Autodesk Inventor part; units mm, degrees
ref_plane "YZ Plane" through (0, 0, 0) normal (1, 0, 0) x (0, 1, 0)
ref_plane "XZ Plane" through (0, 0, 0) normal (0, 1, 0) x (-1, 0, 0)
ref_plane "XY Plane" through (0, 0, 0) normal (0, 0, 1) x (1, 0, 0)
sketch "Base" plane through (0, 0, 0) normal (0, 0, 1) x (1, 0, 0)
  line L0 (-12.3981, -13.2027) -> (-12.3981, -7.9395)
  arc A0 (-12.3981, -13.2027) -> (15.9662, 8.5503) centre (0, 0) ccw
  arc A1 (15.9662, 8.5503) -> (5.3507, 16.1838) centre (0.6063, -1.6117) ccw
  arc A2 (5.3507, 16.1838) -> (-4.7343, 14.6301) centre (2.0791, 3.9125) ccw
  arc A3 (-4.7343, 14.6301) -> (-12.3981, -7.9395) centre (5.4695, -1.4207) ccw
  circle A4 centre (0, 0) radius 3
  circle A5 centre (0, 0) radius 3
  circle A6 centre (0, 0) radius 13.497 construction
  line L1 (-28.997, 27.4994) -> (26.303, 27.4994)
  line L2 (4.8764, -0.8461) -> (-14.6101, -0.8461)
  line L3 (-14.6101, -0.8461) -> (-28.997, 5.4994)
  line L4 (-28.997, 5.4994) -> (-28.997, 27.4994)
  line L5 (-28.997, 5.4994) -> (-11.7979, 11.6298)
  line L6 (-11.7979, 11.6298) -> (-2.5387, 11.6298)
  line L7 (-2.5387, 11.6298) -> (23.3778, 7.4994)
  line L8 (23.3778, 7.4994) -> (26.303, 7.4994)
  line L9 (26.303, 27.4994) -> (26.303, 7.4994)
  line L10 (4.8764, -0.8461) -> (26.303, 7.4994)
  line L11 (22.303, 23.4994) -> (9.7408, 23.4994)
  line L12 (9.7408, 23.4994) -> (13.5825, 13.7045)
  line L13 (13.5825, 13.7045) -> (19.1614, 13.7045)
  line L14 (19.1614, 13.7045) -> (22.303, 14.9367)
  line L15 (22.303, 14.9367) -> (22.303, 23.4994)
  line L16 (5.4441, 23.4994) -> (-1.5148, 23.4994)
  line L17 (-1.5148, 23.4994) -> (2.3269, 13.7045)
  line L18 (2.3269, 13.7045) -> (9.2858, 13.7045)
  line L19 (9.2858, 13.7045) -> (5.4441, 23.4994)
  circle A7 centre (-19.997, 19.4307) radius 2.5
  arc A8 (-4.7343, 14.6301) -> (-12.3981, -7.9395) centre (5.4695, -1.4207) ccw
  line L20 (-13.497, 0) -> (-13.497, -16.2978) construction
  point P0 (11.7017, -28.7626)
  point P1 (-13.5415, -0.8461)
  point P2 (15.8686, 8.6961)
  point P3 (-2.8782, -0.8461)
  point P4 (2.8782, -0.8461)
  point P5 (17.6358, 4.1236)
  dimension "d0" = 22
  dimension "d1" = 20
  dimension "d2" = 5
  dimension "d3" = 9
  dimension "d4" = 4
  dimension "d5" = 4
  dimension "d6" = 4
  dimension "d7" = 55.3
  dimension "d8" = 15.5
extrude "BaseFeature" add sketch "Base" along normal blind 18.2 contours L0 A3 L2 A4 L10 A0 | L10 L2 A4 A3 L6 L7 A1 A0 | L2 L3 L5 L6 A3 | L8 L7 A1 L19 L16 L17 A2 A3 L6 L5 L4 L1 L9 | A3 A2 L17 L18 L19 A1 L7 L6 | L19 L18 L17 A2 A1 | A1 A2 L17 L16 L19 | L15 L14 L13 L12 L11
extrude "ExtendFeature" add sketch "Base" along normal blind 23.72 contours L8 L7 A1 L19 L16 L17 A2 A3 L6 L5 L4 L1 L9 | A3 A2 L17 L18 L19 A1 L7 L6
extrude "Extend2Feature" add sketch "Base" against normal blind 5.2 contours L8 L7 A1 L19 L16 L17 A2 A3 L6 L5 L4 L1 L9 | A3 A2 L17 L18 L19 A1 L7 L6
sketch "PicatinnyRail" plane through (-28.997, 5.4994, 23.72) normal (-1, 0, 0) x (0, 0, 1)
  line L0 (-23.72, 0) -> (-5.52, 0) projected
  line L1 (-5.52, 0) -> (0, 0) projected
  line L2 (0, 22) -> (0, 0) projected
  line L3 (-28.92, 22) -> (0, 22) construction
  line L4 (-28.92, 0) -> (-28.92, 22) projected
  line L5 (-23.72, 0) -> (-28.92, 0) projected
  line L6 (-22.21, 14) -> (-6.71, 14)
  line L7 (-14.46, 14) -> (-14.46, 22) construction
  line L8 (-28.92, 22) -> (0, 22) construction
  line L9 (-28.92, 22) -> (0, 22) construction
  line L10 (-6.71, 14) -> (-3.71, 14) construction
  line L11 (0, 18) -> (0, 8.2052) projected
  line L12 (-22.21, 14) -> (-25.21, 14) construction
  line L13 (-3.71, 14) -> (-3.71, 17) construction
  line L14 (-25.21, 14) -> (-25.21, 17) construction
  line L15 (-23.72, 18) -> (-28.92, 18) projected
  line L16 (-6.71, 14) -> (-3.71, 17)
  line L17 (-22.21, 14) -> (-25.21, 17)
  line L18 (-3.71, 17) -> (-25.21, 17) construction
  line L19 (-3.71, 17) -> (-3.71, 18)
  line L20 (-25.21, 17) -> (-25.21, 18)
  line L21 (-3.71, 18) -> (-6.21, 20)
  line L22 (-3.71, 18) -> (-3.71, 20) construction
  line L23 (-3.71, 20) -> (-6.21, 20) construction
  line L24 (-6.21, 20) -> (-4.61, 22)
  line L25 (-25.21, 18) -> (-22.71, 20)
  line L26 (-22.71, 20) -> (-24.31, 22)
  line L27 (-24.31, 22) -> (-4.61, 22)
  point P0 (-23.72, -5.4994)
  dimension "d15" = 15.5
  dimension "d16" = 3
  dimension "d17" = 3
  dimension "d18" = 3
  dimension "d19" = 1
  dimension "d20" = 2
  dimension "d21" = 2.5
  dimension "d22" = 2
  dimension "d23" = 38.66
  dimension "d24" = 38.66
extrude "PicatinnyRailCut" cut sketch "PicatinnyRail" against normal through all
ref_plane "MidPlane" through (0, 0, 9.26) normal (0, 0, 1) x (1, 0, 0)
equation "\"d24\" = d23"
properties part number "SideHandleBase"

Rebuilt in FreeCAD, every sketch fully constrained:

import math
import FreeCAD as App
import Part
import Sketcher
from FreeCAD import Vector
Q = App.Units.Quantity

doc = App.newDocument("Part")
body = doc.addObject("PartDesign::Body", "Body")

# Sketch on XY plane
sketch1 = body.newObject("Sketcher::SketchObject", "Sketch")
sketch1.AttachmentSupport = (doc.getObject("XY_Plane"), [""])
sketch1.MapMode = "FlatFace"
sketch1.addGeometry(Part.LineSegment(Vector(-12.4, -7.94, 0), Vector(-12.4, -13.2, 0)), False)
sketch1.addGeometry(Part.ArcOfCircle(Part.Circle(Vector(0, 0, 0), Vector(0, 0, 1), 18.11), math.radians(-133), math.radians(28)), False)
sketch1.addGeometry(Part.ArcOfCircle(Part.Circle(Vector(0.61, -1.61, 0), Vector(0, 0, 1), 18.42), math.radians(33.49), math.radians(34.03)), False)
sketch1.addGeometry(Part.LineSegment(Vector(15.87, 8.7, 0), Vector(23.38, 7.5, 0)), False)
sketch1.addGeometry(Part.LineSegment(Vector(23.38, 7.5, 0), Vector(26.3, 7.5, 0)), False)
sketch1.addGeometry(Part.LineSegment(Vector(26.3, 7.5, 0), Vector(26.3, 27.5, 0)), False)
sketch1.addGeometry(Part.LineSegment(Vector(26.3, 27.5, 0), Vector(-29, 27.5, 0)), False)
sketch1.addGeometry(Part.LineSegment(Vector(-29, 27.5, 0), Vector(-29, 5.5, 0)), False)
sketch1.addGeometry(Part.LineSegment(Vector(-29, 5.5, 0), Vector(-14.61, -0.85, 0)), False)
sketch1.addGeometry(Part.LineSegment(Vector(-14.61, -0.85, 0), Vector(-13.54, -0.85, 0)), False)
sketch1.addGeometry(Part.ArcOfCircle(Part.Circle(Vector(5.47, -1.42, 0), Vector(0, 0, 1), 19.02), math.radians(178), math.radians(200)), False)
sketch1.addGeometry(Part.Circle(Vector(0, 0, 0), Vector(0, 0, 1), 3), False)
sketch1.addGeometry(Part.Circle(Vector(-20, 19.43, 0), Vector(0, 0, 1), 2.5), False)
sketch1.addConstraint(Sketcher.Constraint("Coincident", 0, 2, 1, 1))
sketch1.addConstraint(Sketcher.Constraint("Coincident", 1, 2, 2, 1))
sketch1.addConstraint(Sketcher.Constraint("Coincident", 2, 2, 3, 1))
sketch1.addConstraint(Sketcher.Constraint("Coincident", 3, 2, 4, 1))
sketch1.addConstraint(Sketcher.Constraint("Coincident", 4, 2, 5, 1))
sketch1.addConstraint(Sketcher.Constraint("Coincident", 5, 2, 6, 1))
sketch1.addConstraint(Sketcher.Constraint("Coincident", 6, 2, 7, 1))
sketch1.addConstraint(Sketcher.Constraint("Coincident", 7, 2, 8, 1))
sketch1.addConstraint(Sketcher.Constraint("Coincident", 8, 2, 9, 1))
sketch1.addConstraint(Sketcher.Constraint("Coincident", 9, 2, 10, 1))
sketch1.addConstraint(Sketcher.Constraint("Coincident", 10, 2, 0, 1))
sketch1.addConstraint(Sketcher.Constraint("Vertical", 0))
sketch1.addConstraint(Sketcher.Constraint("Horizontal", 4))
sketch1.addConstraint(Sketcher.Constraint("Vertical", 5))
sketch1.addConstraint(Sketcher.Constraint("Horizontal", 6))
sketch1.addConstraint(Sketcher.Constraint("Vertical", 7))
sketch1.addConstraint(Sketcher.Constraint("Horizontal", 9))
sketch1.addConstraint(Sketcher.Constraint("Coincident", 1, 3, -1, 1))
sketch1.addConstraint(Sketcher.Constraint("Coincident", 11, 3, -1, 1))
sketch1.addConstraint(Sketcher.Constraint("Diameter", 12, Q("5 mm")))
sketch1.addConstraint(Sketcher.Constraint("DistanceY", 5, 1, 5, 2, Q("20 mm")))
sketch1.addConstraint(Sketcher.Constraint("DistanceY", 7, 2, 7, 1, Q("22 mm")))
sketch1.addConstraint(Sketcher.Constraint("Diameter", 11, Q("6 mm")))
sketch1.addConstraint(Sketcher.Constraint("DistanceX", 6, 2, 6, 1, Q("55.3 mm")))
sketch1.addConstraint(Sketcher.Constraint("DistanceX", 6, 2, 12, 3, Q("9 mm")))
sketch1.addConstraint(Sketcher.Constraint("Angle", 8, Q("-23.8004 deg")))
sketch1.addConstraint(Sketcher.Constraint("Radius", 1, Q("18.1114 mm")))
sketch1.addConstraint(Sketcher.Constraint("Radius", 2, Q("18.4172 mm")))
sketch1.addConstraint(Sketcher.Constraint("Radius", 10, Q("19.0196 mm")))
sketch1.addConstraint(Sketcher.Constraint("DistanceX", 8, 2, -1, 1, Q("14.61 mm")))
sketch1.addConstraint(Sketcher.Constraint("DistanceY", 10, 3, 3, 2, Q("8.92 mm")))
sketch1.addConstraint(Sketcher.Constraint("DistanceX", 4, 1, 4, 2, Q("2.9252 mm")))
sketch1.addConstraint(Sketcher.Constraint("DistanceX", 9, 1, 9, 2, Q("1.0687 mm")))
sketch1.addConstraint(Sketcher.Constraint("DistanceY", 0, 2, 0, 1, Q("5.2632 mm")))
sketch1.addConstraint(Sketcher.Constraint("DistanceX", 12, 3, -1, 1, Q("19.997 mm")))
sketch1.addConstraint(Sketcher.Constraint("DistanceX", 0, 2, -1, 1, Q("12.398 mm")))
sketch1.addConstraint(Sketcher.Constraint("DistanceY", 2, 3, 10, 3, Q("0.191 mm")))
sketch1.addConstraint(Sketcher.Constraint("DistanceY", 10, 3, 1, 2, Q("9.971 mm")))
sketch1.addConstraint(Sketcher.Constraint("DistanceY", 1, 2, 2, 2, Q("0.146 mm")))
sketch1.addConstraint(Sketcher.Constraint("DistanceY", -1, 1, 12, 3, Q("19.4307 mm")))
pad1 = body.newObject("PartDesign::Pad", "Pad")
pad1.Profile = sketch1
pad1.Length = 18.2

# Sketch on XY plane
sketch2 = body.newObject("Sketcher::SketchObject", "Sketch001")
sketch2.AttachmentSupport = (doc.getObject("XY_Plane"), [""])
sketch2.MapMode = "FlatFace"
sketch2.addGeometry(Part.LineSegment(Vector(23.4, 7.5, 0), Vector(26.3, 7.5, 0)), False)
sketch2.addGeometry(Part.LineSegment(Vector(26.3, 7.5, 0), Vector(26.3, 27.5, 0)), False)
sketch2.addGeometry(Part.LineSegment(Vector(26.3, 27.5, 0), Vector(-29, 27.5, 0)), False)
sketch2.addGeometry(Part.LineSegment(Vector(-29, 27.5, 0), Vector(-29, 5.5, 0)), False)
sketch2.addGeometry(Part.LineSegment(Vector(-29, 5.5, 0), Vector(-11.8, 11.6, 0)), False)
sketch2.addGeometry(Part.LineSegment(Vector(-11.8, 11.6, 0), Vector(-2.5, 11.6, 0)), False)
sketch2.addGeometry(Part.LineSegment(Vector(-2.5, 11.6, 0), Vector(23.4, 7.5, 0)), False)
sketch2.addGeometry(Part.LineSegment(Vector(5.4, 23.5, 0), Vector(9.3, 13.7, 0)), False)
sketch2.addGeometry(Part.LineSegment(Vector(9.3, 13.7, 0), Vector(2.3, 13.7, 0)), False)
sketch2.addGeometry(Part.LineSegment(Vector(2.3, 13.7, 0), Vector(-1.5, 23.5, 0)), False)
sketch2.addGeometry(Part.LineSegment(Vector(-1.5, 23.5, 0), Vector(5.4, 23.5, 0)), False)
sketch2.addGeometry(Part.Circle(Vector(-20, 19.4, 0), Vector(0, 0, 1), 2.5), False)
sketch2.addGeometry(Part.LineSegment(Vector(9.7, 23.5, 0), Vector(22.3, 23.5, 0)), False)
sketch2.addGeometry(Part.LineSegment(Vector(22.3, 23.5, 0), Vector(22.3, 14.9, 0)), False)
sketch2.addGeometry(Part.LineSegment(Vector(22.3, 14.9, 0), Vector(19.2, 13.7, 0)), False)
sketch2.addGeometry(Part.LineSegment(Vector(19.2, 13.7, 0), Vector(13.6, 13.7, 0)), False)
sketch2.addGeometry(Part.LineSegment(Vector(13.6, 13.7, 0), Vector(9.7, 23.5, 0)), False)
sketch2.addConstraint(Sketcher.Constraint("Coincident", 0, 2, 1, 1))
sketch2.addConstraint(Sketcher.Constraint("Coincident", 1, 2, 2, 1))
sketch2.addConstraint(Sketcher.Constraint("Coincident", 2, 2, 3, 1))
sketch2.addConstraint(Sketcher.Constraint("Coincident", 3, 2, 4, 1))
sketch2.addConstraint(Sketcher.Constraint("Coincident", 4, 2, 5, 1))
sketch2.addConstraint(Sketcher.Constraint("Coincident", 5, 2, 6, 1))
sketch2.addConstraint(Sketcher.Constraint("Coincident", 6, 2, 0, 1))
sketch2.addConstraint(Sketcher.Constraint("Coincident", 7, 2, 8, 1))
sketch2.addConstraint(Sketcher.Constraint("Coincident", 8, 2, 9, 1))
sketch2.addConstraint(Sketcher.Constraint("Coincident", 9, 2, 10, 1))
sketch2.addConstraint(Sketcher.Constraint("Coincident", 10, 2, 7, 1))
sketch2.addConstraint(Sketcher.Constraint("Coincident", 12, 2, 13, 1))
sketch2.addConstraint(Sketcher.Constraint("Coincident", 13, 2, 14, 1))
sketch2.addConstraint(Sketcher.Constraint("Coincident", 14, 2, 15, 1))
sketch2.addConstraint(Sketcher.Constraint("Coincident", 15, 2, 16, 1))
sketch2.addConstraint(Sketcher.Constraint("Coincident", 16, 2, 12, 1))
sketch2.addConstraint(Sketcher.Constraint("Horizontal", 0))
sketch2.addConstraint(Sketcher.Constraint("Vertical", 1))
sketch2.addConstraint(Sketcher.Constraint("Horizontal", 2))
sketch2.addConstraint(Sketcher.Constraint("Vertical", 3))
sketch2.addConstraint(Sketcher.Constraint("Horizontal", 5))
sketch2.addConstraint(Sketcher.Constraint("Horizontal", 8))
sketch2.addConstraint(Sketcher.Constraint("Horizontal", 10))
sketch2.addConstraint(Sketcher.Constraint("Horizontal", 12))
sketch2.addConstraint(Sketcher.Constraint("Vertical", 13))
sketch2.addConstraint(Sketcher.Constraint("Horizontal", 15))
sketch2.addConstraint(Sketcher.Constraint("Parallel", 7, 9))
sketch2.addConstraint(Sketcher.Constraint("Perpendicular", 9, 14))
sketch2.addConstraint(Sketcher.Constraint("Perpendicular", 14, 16))
sketch2.addConstraint(Sketcher.Constraint("Horizontal", 10, 2, 12, 2))
sketch2.addConstraint(Sketcher.Constraint("Horizontal", 8, 2, 14, 2))
sketch2.addConstraint(Sketcher.Constraint("Diameter", 11, Q("5 mm")))
sketch2.addConstraint(Sketcher.Constraint("DistanceY", 1, 1, 1, 2, Q("20 mm")))
sketch2.addConstraint(Sketcher.Constraint("DistanceY", 3, 2, 3, 1, Q("22 mm")))
sketch2.addConstraint(Sketcher.Constraint("DistanceX", 2, 2, 2, 1, Q("55.3 mm")))
sketch2.addConstraint(Sketcher.Constraint("DistanceX", 2, 2, 11, 3, Q("9 mm")))
sketch2.addConstraint(Sketcher.Constraint("DistanceX", 12, 2, 1, 2, Q("4 mm")))
sketch2.addConstraint(Sketcher.Constraint("DistanceY", 12, 2, 1, 2, Q("4 mm")))
sketch2.addConstraint(Sketcher.Constraint("DistanceX", 8, 2, 8, 1, Q("6.959 mm")))
sketch2.addConstraint(Sketcher.Constraint("DistanceX", 15, 2, 15, 1, Q("5.579 mm")))
sketch2.addConstraint(Sketcher.Constraint("Distance", 4, Q("18.259 mm")))
sketch2.addConstraint(Sketcher.Constraint("DistanceX", 0, 1, 0, 2, Q("2.9252 mm")))
sketch2.addConstraint(Sketcher.Constraint("DistanceX", 5, 1, 5, 2, Q("9.2592 mm")))
sketch2.addConstraint(Sketcher.Constraint("DistanceX", 12, 1, 12, 2, Q("12.5622 mm")))
sketch2.addConstraint(Sketcher.Constraint("DistanceY", 13, 2, 13, 1, Q("8.5627 mm")))
sketch2.addConstraint(Sketcher.Constraint("DistanceX", 11, 3, -1, 1, Q("19.997 mm")))
sketch2.addConstraint(Sketcher.Constraint("DistanceX", 4, 2, -1, 1, Q("11.798 mm")))
sketch2.addConstraint(Sketcher.Constraint("DistanceX", -1, 1, 8, 2, Q("2.327 mm")))
sketch2.addConstraint(Sketcher.Constraint("DistanceX", -1, 1, 10, 2, Q("5.444 mm")))
sketch2.addConstraint(Sketcher.Constraint("DistanceY", 4, 2, 11, 3, Q("7.801 mm")))
sketch2.addConstraint(Sketcher.Constraint("DistanceY", -1, 1, 11, 3, Q("19.4307 mm")))
pad2 = body.newObject("PartDesign::Pad", "Pad001")
pad2.Profile = sketch2
pad2.Length = 23.72

# Sketch on XY plane
sketch3 = body.newObject("Sketcher::SketchObject", "Sketch002")
sketch3.AttachmentSupport = (doc.getObject("XY_Plane"), [""])
sketch3.MapMode = "FlatFace"
sketch3.addGeometry(Part.LineSegment(Vector(23.4, 7.5, 0), Vector(26.3, 7.5, 0)), False)
sketch3.addGeometry(Part.LineSegment(Vector(26.3, 7.5, 0), Vector(26.3, 27.5, 0)), False)
sketch3.addGeometry(Part.LineSegment(Vector(26.3, 27.5, 0), Vector(-29, 27.5, 0)), False)
sketch3.addGeometry(Part.LineSegment(Vector(-29, 27.5, 0), Vector(-29, 5.5, 0)), False)
sketch3.addGeometry(Part.LineSegment(Vector(-29, 5.5, 0), Vector(-11.8, 11.6, 0)), False)
sketch3.addGeometry(Part.LineSegment(Vector(-11.8, 11.6, 0), Vector(-2.5, 11.6, 0)), False)
sketch3.addGeometry(Part.LineSegment(Vector(-2.5, 11.6, 0), Vector(23.4, 7.5, 0)), False)
sketch3.addGeometry(Part.LineSegment(Vector(5.4, 23.5, 0), Vector(9.3, 13.7, 0)), False)
sketch3.addGeometry(Part.LineSegment(Vector(9.3, 13.7, 0), Vector(2.3, 13.7, 0)), False)
sketch3.addGeometry(Part.LineSegment(Vector(2.3, 13.7, 0), Vector(-1.5, 23.5, 0)), False)
sketch3.addGeometry(Part.LineSegment(Vector(-1.5, 23.5, 0), Vector(5.4, 23.5, 0)), False)
sketch3.addGeometry(Part.Circle(Vector(-20, 19.4, 0), Vector(0, 0, 1), 2.5), False)
sketch3.addGeometry(Part.LineSegment(Vector(9.7, 23.5, 0), Vector(22.3, 23.5, 0)), False)
sketch3.addGeometry(Part.LineSegment(Vector(22.3, 23.5, 0), Vector(22.3, 14.9, 0)), False)
sketch3.addGeometry(Part.LineSegment(Vector(22.3, 14.9, 0), Vector(19.2, 13.7, 0)), False)
sketch3.addGeometry(Part.LineSegment(Vector(19.2, 13.7, 0), Vector(13.6, 13.7, 0)), False)
sketch3.addGeometry(Part.LineSegment(Vector(13.6, 13.7, 0), Vector(9.7, 23.5, 0)), False)
sketch3.addConstraint(Sketcher.Constraint("Coincident", 0, 2, 1, 1))
sketch3.addConstraint(Sketcher.Constraint("Coincident", 1, 2, 2, 1))
sketch3.addConstraint(Sketcher.Constraint("Coincident", 2, 2, 3, 1))
sketch3.addConstraint(Sketcher.Constraint("Coincident", 3, 2, 4, 1))
sketch3.addConstraint(Sketcher.Constraint("Coincident", 4, 2, 5, 1))
sketch3.addConstraint(Sketcher.Constraint("Coincident", 5, 2, 6, 1))
sketch3.addConstraint(Sketcher.Constraint("Coincident", 6, 2, 0, 1))
sketch3.addConstraint(Sketcher.Constraint("Coincident", 7, 2, 8, 1))
sketch3.addConstraint(Sketcher.Constraint("Coincident", 8, 2, 9, 1))
sketch3.addConstraint(Sketcher.Constraint("Coincident", 9, 2, 10, 1))
sketch3.addConstraint(Sketcher.Constraint("Coincident", 10, 2, 7, 1))
sketch3.addConstraint(Sketcher.Constraint("Coincident", 12, 2, 13, 1))
sketch3.addConstraint(Sketcher.Constraint("Coincident", 13, 2, 14, 1))
sketch3.addConstraint(Sketcher.Constraint("Coincident", 14, 2, 15, 1))
sketch3.addConstraint(Sketcher.Constraint("Coincident", 15, 2, 16, 1))
sketch3.addConstraint(Sketcher.Constraint("Coincident", 16, 2, 12, 1))
sketch3.addConstraint(Sketcher.Constraint("Horizontal", 0))
sketch3.addConstraint(Sketcher.Constraint("Vertical", 1))
sketch3.addConstraint(Sketcher.Constraint("Horizontal", 2))
sketch3.addConstraint(Sketcher.Constraint("Vertical", 3))
sketch3.addConstraint(Sketcher.Constraint("Horizontal", 5))
sketch3.addConstraint(Sketcher.Constraint("Horizontal", 8))
sketch3.addConstraint(Sketcher.Constraint("Horizontal", 10))
sketch3.addConstraint(Sketcher.Constraint("Horizontal", 12))
sketch3.addConstraint(Sketcher.Constraint("Vertical", 13))
sketch3.addConstraint(Sketcher.Constraint("Horizontal", 15))
sketch3.addConstraint(Sketcher.Constraint("Parallel", 7, 9))
sketch3.addConstraint(Sketcher.Constraint("Perpendicular", 9, 14))
sketch3.addConstraint(Sketcher.Constraint("Perpendicular", 14, 16))
sketch3.addConstraint(Sketcher.Constraint("Horizontal", 10, 2, 12, 2))
sketch3.addConstraint(Sketcher.Constraint("Horizontal", 8, 2, 14, 2))
sketch3.addConstraint(Sketcher.Constraint("Diameter", 11, Q("5 mm")))
sketch3.addConstraint(Sketcher.Constraint("DistanceY", 1, 1, 1, 2, Q("20 mm")))
sketch3.addConstraint(Sketcher.Constraint("DistanceY", 3, 2, 3, 1, Q("22 mm")))
sketch3.addConstraint(Sketcher.Constraint("DistanceX", 2, 2, 2, 1, Q("55.3 mm")))
sketch3.addConstraint(Sketcher.Constraint("DistanceX", 2, 2, 11, 3, Q("9 mm")))
sketch3.addConstraint(Sketcher.Constraint("DistanceX", 12, 2, 1, 2, Q("4 mm")))
sketch3.addConstraint(Sketcher.Constraint("DistanceY", 12, 2, 1, 2, Q("4 mm")))
sketch3.addConstraint(Sketcher.Constraint("DistanceX", 8, 2, 8, 1, Q("6.959 mm")))
sketch3.addConstraint(Sketcher.Constraint("DistanceX", 15, 2, 15, 1, Q("5.579 mm")))
sketch3.addConstraint(Sketcher.Constraint("Distance", 4, Q("18.259 mm")))
sketch3.addConstraint(Sketcher.Constraint("DistanceX", 0, 1, 0, 2, Q("2.9252 mm")))
sketch3.addConstraint(Sketcher.Constraint("DistanceX", 5, 1, 5, 2, Q("9.2592 mm")))
sketch3.addConstraint(Sketcher.Constraint("DistanceX", 12, 1, 12, 2, Q("12.5622 mm")))
sketch3.addConstraint(Sketcher.Constraint("DistanceY", 13, 2, 13, 1, Q("8.5627 mm")))
sketch3.addConstraint(Sketcher.Constraint("DistanceX", 11, 3, -1, 1, Q("19.997 mm")))
sketch3.addConstraint(Sketcher.Constraint("DistanceX", 4, 2, -1, 1, Q("11.798 mm")))
sketch3.addConstraint(Sketcher.Constraint("DistanceX", -1, 1, 8, 2, Q("2.327 mm")))
sketch3.addConstraint(Sketcher.Constraint("DistanceX", -1, 1, 10, 2, Q("5.444 mm")))
sketch3.addConstraint(Sketcher.Constraint("DistanceY", 4, 2, 11, 3, Q("7.801 mm")))
sketch3.addConstraint(Sketcher.Constraint("DistanceY", -1, 1, 11, 3, Q("19.4307 mm")))
pad3 = body.newObject("PartDesign::Pad", "Pad002")
pad3.Profile = sketch3
pad3.Length = 5.2
pad3.Reversed = True

# Sketch on YZ plane
sketch4 = body.newObject("Sketcher::SketchObject", "Sketch003")
sketch4.AttachmentSupport = (doc.getObject("YZ_Plane"), [""])
sketch4.MapMode = "FlatFace"
sketch4.AttachmentOffset = App.Placement(Vector(0, 0, -28.997), App.Rotation())
sketch4.addGeometry(Part.LineSegment(Vector(22.5, -1.5, 0), Vector(19.5, 1.5, 0)), False)
sketch4.addGeometry(Part.LineSegment(Vector(19.5, 1.5, 0), Vector(19.5, 17, 0)), False)
sketch4.addGeometry(Part.LineSegment(Vector(19.5, 17, 0), Vector(22.5, 20, 0)), False)
sketch4.addGeometry(Part.LineSegment(Vector(22.5, 20, 0), Vector(23.5, 20, 0)), False)
sketch4.addGeometry(Part.LineSegment(Vector(23.5, 20, 0), Vector(25.5, 17.5, 0)), False)
sketch4.addGeometry(Part.LineSegment(Vector(25.5, 17.5, 0), Vector(27.5, 19.1, 0)), False)
sketch4.addGeometry(Part.LineSegment(Vector(27.5, 19.1, 0), Vector(27.5, -0.6, 0)), False)
sketch4.addGeometry(Part.LineSegment(Vector(27.5, -0.6, 0), Vector(25.5, 1, 0)), False)
sketch4.addGeometry(Part.LineSegment(Vector(25.5, 1, 0), Vector(23.5, -1.5, 0)), False)
sketch4.addGeometry(Part.LineSegment(Vector(23.5, -1.5, 0), Vector(22.5, -1.5, 0)), False)
sketch4.addConstraint(Sketcher.Constraint("Coincident", 0, 2, 1, 1))
sketch4.addConstraint(Sketcher.Constraint("Coincident", 1, 2, 2, 1))
sketch4.addConstraint(Sketcher.Constraint("Coincident", 2, 2, 3, 1))
sketch4.addConstraint(Sketcher.Constraint("Coincident", 3, 2, 4, 1))
sketch4.addConstraint(Sketcher.Constraint("Coincident", 4, 2, 5, 1))
sketch4.addConstraint(Sketcher.Constraint("Coincident", 5, 2, 6, 1))
sketch4.addConstraint(Sketcher.Constraint("Coincident", 6, 2, 7, 1))
sketch4.addConstraint(Sketcher.Constraint("Coincident", 7, 2, 8, 1))
sketch4.addConstraint(Sketcher.Constraint("Coincident", 8, 2, 9, 1))
sketch4.addConstraint(Sketcher.Constraint("Coincident", 9, 2, 0, 1))
sketch4.addConstraint(Sketcher.Constraint("Vertical", 1))
sketch4.addConstraint(Sketcher.Constraint("Horizontal", 3))
sketch4.addConstraint(Sketcher.Constraint("Vertical", 6))
sketch4.addConstraint(Sketcher.Constraint("Horizontal", 9))
sketch4.addConstraint(Sketcher.Constraint("Perpendicular", 0, 2))
sketch4.addConstraint(Sketcher.Constraint("Perpendicular", 4, 5))
sketch4.addConstraint(Sketcher.Constraint("Perpendicular", 7, 8))
sketch4.addConstraint(Sketcher.Constraint("Vertical", 4, 2, 7, 2))
sketch4.addConstraint(Sketcher.Constraint("Vertical", 3, 2, 8, 2))
sketch4.addConstraint(Sketcher.Constraint("Vertical", 2, 2, 9, 2))
sketch4.addConstraint(Sketcher.Constraint("Equal", 0, 2))
sketch4.addConstraint(Sketcher.Constraint("Equal", 5, 7))
sketch4.addConstraint(Sketcher.Constraint("DistanceX", 3, 1, 3, 2, Q("1 mm")))
sketch4.addConstraint(Sketcher.Constraint("DistanceY", 1, 1, 1, 2, Q("15.5 mm")))
sketch4.addConstraint(Sketcher.Constraint("DistanceX", 1, 2, 2, 2, Q("3 mm")))
sketch4.addConstraint(Sketcher.Constraint("DistanceX", 3, 2, 4, 2, Q("2 mm")))
sketch4.addConstraint(Sketcher.Constraint("DistanceX", 4, 2, 5, 2, Q("2 mm")))
sketch4.addConstraint(Sketcher.Constraint("Angle", 5, Q("38.6598 deg")))
sketch4.addConstraint(Sketcher.Constraint("DistanceY", -1, 1, 0, 2, Q("1.51 mm")))
sketch4.addConstraint(Sketcher.Constraint("DistanceX", -1, 1, 0, 2, Q("19.4994 mm")))
pocket1 = body.newObject("PartDesign::Pocket", "Pocket")
pocket1.Profile = sketch4
pocket1.Type = "ThroughAll"
pocket1.Reversed = True

doc.recompute()
